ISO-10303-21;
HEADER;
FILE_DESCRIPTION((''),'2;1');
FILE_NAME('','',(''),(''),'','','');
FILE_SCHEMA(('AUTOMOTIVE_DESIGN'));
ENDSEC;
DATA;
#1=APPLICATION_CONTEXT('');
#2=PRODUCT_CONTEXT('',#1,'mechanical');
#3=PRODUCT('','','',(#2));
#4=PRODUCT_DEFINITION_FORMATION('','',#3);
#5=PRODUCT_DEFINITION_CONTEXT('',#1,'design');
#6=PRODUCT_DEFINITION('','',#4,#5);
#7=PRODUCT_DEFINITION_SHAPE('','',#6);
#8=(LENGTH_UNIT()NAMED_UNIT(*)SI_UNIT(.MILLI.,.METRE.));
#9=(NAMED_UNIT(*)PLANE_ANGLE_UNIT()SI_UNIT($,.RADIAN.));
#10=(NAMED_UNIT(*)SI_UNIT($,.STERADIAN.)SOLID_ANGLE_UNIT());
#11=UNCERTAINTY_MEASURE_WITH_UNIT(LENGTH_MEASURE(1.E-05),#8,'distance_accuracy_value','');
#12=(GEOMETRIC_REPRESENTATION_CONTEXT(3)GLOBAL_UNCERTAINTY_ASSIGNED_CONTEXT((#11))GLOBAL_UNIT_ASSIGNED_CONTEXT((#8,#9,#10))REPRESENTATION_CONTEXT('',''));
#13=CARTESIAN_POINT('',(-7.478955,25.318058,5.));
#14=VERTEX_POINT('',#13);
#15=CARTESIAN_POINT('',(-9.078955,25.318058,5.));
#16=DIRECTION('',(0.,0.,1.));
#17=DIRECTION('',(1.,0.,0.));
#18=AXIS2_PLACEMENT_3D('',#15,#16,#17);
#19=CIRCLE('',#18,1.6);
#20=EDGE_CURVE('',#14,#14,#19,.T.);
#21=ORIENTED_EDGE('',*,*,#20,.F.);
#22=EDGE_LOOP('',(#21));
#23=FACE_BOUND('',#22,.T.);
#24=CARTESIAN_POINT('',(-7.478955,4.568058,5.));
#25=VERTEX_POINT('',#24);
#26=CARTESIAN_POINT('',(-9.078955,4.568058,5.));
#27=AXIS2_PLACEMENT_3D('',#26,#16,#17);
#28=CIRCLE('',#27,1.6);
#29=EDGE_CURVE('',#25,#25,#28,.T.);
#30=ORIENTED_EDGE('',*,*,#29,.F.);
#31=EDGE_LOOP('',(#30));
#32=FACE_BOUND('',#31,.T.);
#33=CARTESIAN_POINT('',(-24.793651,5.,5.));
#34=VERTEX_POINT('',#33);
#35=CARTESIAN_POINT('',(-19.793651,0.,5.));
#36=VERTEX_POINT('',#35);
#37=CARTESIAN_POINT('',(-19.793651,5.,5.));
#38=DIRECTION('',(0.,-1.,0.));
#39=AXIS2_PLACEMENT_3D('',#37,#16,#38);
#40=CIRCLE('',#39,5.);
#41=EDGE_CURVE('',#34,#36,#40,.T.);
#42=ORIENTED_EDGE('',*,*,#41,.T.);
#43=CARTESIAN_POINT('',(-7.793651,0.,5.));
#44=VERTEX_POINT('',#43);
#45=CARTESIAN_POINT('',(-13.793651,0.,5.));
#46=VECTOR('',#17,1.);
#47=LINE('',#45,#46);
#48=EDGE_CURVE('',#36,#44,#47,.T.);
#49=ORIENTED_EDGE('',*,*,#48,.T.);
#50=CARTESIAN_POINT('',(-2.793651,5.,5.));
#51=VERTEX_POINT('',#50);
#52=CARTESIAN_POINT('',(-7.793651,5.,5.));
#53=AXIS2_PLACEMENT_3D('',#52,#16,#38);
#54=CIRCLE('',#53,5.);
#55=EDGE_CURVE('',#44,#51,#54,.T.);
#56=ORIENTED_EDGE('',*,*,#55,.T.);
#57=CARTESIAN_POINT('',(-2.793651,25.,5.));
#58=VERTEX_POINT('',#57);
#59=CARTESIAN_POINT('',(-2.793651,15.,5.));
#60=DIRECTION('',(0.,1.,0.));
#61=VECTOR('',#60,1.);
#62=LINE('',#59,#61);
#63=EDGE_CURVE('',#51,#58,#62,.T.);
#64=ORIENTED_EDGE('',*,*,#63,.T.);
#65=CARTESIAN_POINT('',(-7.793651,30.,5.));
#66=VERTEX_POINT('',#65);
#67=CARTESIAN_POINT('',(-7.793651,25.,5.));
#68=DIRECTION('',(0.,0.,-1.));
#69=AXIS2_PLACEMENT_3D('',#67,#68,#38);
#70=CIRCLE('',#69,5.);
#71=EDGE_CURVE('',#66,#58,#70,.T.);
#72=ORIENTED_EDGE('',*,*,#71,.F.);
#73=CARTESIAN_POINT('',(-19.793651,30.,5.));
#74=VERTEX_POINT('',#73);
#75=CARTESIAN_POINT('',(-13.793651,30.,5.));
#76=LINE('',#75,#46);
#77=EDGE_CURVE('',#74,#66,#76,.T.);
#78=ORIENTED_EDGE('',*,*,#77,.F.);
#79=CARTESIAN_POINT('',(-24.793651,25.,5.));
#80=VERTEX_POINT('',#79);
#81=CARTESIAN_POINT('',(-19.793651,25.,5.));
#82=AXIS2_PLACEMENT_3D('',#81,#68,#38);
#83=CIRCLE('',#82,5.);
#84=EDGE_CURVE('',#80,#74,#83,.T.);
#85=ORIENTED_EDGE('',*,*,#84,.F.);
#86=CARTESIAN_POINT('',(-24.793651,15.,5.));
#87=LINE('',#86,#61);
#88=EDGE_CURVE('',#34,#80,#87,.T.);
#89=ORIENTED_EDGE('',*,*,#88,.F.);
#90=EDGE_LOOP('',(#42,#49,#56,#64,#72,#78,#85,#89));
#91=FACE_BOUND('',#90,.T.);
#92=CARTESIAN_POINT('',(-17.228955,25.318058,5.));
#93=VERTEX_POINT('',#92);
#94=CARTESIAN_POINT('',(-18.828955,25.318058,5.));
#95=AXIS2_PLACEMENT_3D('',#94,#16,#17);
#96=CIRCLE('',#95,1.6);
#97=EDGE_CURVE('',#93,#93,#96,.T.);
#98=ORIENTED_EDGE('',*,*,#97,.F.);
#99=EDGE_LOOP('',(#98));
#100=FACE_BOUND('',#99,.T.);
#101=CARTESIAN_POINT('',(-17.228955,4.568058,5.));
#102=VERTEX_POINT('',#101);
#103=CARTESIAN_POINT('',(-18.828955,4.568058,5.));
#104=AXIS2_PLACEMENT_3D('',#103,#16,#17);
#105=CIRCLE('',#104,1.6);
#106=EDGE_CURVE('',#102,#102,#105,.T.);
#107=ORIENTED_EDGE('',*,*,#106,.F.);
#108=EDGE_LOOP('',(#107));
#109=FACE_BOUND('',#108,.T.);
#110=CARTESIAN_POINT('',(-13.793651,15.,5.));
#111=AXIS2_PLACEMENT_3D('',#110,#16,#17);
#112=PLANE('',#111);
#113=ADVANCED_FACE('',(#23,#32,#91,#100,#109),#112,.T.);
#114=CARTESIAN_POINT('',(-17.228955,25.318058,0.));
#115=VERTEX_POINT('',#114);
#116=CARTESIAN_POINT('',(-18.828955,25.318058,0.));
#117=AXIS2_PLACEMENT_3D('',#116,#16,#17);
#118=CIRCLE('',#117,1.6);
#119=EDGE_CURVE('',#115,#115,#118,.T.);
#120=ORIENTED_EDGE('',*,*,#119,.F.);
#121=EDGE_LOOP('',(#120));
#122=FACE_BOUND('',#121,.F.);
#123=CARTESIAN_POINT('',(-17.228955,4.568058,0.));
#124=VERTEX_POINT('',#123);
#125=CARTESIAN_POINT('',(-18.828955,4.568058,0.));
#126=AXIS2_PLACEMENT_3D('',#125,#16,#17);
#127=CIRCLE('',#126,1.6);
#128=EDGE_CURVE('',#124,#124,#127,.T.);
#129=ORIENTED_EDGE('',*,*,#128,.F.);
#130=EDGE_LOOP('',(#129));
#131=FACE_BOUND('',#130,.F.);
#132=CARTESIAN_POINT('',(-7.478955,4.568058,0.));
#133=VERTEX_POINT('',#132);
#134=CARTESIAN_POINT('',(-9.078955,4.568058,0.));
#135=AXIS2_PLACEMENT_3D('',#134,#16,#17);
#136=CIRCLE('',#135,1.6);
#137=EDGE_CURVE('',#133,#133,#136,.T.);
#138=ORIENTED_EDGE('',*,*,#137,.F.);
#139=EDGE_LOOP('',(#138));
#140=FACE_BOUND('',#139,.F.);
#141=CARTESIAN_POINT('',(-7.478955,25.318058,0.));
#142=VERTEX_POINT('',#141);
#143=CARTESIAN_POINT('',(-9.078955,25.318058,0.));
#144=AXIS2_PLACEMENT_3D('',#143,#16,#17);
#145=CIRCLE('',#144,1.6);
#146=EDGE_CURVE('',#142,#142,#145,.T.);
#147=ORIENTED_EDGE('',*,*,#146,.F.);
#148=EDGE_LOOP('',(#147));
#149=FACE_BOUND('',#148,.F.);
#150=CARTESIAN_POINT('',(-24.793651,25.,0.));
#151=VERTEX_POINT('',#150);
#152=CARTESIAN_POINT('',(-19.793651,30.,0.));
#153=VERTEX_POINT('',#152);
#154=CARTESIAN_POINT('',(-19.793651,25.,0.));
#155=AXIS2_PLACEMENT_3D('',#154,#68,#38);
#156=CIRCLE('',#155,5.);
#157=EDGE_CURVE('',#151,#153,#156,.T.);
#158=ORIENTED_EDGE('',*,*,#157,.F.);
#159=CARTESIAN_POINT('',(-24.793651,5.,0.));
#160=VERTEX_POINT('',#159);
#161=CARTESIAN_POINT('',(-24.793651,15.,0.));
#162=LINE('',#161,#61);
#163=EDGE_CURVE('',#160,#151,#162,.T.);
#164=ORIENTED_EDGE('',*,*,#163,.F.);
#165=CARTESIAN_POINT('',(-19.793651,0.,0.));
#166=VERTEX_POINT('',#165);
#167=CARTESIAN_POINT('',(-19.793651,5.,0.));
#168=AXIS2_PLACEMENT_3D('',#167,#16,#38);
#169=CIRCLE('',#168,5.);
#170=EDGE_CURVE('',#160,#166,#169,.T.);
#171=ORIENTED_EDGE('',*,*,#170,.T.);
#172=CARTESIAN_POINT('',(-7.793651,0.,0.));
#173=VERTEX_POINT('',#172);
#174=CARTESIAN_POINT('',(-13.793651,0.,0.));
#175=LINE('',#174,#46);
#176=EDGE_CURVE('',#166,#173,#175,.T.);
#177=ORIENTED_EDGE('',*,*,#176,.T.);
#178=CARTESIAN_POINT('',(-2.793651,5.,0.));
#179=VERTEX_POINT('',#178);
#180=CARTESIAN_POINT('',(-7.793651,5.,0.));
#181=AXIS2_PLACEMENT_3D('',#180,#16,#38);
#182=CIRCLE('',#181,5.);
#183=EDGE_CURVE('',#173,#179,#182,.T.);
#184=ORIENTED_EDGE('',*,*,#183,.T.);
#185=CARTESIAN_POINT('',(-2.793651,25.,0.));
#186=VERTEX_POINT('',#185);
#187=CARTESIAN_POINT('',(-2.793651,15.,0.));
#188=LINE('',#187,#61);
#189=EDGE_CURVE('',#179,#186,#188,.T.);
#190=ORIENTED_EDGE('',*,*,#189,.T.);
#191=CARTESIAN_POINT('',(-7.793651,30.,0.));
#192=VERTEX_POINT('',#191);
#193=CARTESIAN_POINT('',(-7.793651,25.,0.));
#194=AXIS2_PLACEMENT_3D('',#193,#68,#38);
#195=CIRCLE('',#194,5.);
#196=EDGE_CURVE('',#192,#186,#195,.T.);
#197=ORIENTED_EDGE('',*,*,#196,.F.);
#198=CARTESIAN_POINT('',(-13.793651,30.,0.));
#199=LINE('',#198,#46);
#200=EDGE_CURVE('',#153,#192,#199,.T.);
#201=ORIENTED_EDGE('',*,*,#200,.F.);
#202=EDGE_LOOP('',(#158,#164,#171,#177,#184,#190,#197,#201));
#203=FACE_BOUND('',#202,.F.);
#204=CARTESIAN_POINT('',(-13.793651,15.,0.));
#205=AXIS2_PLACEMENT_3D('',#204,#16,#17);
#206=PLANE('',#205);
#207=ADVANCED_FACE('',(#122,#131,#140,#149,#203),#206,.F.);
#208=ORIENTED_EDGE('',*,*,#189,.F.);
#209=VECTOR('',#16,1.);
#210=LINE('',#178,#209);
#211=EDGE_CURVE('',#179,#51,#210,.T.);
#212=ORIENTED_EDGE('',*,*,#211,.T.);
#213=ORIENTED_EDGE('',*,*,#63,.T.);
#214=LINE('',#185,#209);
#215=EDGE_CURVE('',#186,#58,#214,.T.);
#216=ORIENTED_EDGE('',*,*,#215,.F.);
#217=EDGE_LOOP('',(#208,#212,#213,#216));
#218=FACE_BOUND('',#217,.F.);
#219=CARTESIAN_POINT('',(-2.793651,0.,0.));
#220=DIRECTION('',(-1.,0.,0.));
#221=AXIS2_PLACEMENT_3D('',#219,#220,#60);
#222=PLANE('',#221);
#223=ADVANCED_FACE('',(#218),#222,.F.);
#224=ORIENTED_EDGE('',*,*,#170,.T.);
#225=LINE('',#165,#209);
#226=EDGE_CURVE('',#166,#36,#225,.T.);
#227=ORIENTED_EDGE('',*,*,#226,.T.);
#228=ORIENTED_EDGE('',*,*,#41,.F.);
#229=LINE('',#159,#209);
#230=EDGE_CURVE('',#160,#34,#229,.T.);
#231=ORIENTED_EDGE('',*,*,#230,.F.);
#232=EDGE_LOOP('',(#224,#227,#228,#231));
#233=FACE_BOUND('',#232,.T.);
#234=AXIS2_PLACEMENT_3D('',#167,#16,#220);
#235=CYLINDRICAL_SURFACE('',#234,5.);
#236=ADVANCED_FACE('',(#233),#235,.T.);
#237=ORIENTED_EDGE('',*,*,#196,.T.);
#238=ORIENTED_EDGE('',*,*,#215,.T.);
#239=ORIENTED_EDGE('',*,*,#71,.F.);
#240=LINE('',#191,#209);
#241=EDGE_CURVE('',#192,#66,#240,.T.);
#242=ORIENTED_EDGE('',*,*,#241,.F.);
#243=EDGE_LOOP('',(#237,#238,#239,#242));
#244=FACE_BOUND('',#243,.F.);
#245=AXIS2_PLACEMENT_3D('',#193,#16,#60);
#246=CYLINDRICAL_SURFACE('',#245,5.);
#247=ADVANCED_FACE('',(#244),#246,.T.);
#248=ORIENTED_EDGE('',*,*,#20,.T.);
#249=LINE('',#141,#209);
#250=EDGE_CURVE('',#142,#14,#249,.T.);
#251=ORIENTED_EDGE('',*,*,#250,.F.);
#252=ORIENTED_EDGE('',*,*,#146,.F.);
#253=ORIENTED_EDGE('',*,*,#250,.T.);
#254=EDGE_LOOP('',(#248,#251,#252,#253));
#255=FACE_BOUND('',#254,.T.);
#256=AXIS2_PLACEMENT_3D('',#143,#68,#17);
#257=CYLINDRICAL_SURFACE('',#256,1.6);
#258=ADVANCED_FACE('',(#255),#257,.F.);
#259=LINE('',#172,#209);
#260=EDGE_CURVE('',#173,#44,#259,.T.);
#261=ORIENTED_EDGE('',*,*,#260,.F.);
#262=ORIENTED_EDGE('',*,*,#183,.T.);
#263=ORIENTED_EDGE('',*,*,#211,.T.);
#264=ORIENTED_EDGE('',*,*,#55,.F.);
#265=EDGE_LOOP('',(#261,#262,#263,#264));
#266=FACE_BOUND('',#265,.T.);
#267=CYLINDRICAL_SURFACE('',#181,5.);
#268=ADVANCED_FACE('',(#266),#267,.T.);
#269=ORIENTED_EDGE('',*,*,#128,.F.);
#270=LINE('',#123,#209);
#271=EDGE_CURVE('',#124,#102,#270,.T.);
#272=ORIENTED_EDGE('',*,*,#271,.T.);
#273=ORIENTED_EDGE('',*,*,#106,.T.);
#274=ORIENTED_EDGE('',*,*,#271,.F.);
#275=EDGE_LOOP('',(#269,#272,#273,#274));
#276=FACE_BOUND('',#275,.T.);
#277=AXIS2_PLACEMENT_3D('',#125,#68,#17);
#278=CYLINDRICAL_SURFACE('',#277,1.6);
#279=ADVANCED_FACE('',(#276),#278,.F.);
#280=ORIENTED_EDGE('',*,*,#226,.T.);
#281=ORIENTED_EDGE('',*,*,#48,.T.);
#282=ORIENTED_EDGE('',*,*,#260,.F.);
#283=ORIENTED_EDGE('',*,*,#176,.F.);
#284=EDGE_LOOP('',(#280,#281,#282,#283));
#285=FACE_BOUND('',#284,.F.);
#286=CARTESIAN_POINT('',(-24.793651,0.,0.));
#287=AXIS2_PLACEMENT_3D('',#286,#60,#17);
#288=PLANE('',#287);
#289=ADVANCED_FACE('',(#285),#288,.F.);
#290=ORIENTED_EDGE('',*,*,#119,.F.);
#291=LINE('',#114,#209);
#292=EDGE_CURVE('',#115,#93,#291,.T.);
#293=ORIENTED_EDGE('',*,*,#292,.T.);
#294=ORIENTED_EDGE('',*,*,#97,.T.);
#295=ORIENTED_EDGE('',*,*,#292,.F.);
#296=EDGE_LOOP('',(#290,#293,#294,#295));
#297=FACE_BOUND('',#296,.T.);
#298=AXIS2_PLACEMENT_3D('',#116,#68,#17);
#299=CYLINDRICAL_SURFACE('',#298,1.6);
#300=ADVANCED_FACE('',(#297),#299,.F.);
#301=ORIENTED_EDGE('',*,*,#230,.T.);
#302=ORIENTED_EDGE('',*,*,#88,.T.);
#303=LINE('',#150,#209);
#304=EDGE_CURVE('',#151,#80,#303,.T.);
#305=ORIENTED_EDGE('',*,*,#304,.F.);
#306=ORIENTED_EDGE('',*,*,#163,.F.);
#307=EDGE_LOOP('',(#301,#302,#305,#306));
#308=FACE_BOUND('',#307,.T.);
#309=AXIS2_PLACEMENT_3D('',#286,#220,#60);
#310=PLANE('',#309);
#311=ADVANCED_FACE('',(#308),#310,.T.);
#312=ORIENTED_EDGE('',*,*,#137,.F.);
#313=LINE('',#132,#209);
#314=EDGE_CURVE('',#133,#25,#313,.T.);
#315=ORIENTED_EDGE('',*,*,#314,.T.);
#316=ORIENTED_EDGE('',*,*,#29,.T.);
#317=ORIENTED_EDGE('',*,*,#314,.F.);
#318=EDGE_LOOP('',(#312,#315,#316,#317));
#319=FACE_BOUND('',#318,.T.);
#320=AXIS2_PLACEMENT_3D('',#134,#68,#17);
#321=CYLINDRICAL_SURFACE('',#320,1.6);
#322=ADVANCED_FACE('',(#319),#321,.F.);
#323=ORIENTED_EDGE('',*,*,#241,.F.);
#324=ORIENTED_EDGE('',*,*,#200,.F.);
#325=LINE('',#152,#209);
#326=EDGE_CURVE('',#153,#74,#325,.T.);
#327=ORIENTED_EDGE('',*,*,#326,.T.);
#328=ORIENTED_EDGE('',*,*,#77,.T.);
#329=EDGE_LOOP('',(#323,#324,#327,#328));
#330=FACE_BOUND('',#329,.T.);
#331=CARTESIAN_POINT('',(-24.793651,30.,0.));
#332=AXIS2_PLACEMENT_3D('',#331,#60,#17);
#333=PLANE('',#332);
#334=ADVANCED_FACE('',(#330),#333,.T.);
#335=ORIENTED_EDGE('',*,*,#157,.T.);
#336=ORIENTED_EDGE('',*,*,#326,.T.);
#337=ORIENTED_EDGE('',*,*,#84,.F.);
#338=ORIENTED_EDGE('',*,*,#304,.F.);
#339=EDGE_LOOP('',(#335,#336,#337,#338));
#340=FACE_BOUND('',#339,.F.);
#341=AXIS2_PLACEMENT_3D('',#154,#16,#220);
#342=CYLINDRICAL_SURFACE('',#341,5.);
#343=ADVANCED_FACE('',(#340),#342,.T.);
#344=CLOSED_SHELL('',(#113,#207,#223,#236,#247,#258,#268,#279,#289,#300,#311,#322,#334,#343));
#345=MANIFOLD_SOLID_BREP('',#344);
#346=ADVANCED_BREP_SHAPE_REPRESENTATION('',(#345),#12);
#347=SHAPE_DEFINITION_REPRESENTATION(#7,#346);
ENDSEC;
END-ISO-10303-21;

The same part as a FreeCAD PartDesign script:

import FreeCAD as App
import Part
import Sketcher

V = App.Vector
Q = App.Units.Quantity


def edges_at(feature, points):
    """Names of the edges that pass closest to the given points."""
    edges = feature.Shape.Edges
    near = lambda p: min(range(len(edges)), key=lambda i: edges[i].distToShape(Part.Vertex(*p))[0])
    return sorted({f"Edge{near(p) + 1}" for p in points})


def add_polygon(sketch, points):
    """Adds a closed chain of lines whose ends are joined by coincident constraints."""
    first, n = sketch.GeometryCount, len(points)
    for a, b in zip(points, points[1:] + points[:1]):
        sketch.addGeometry(Part.LineSegment(App.Vector(*a, 0), App.Vector(*b, 0)), False)
    for i in range(n):
        sketch.addConstraint(Sketcher.Constraint("Coincident", first + i, 2, first + (i + 1) % n, 1))

doc = App.newDocument("Part")
body = doc.addObject("PartDesign::Body", "Body")

# Sketch on XY plane
sketch1 = doc.addObject("Sketcher::SketchObject", "Sketch")
body.addObject(sketch1)
sketch1.AttachmentSupport = (doc.XY_Plane, [""])
sketch1.MapMode = "FlatFace"
add_polygon(sketch1, [(-24.8, 30), (-24.8, 0), (-2.8, 0), (-2.8, 30)])  # lines 0-3
sketch1.addGeometry(Part.Circle(V(-18.8, 4.6, 0), V(0, 0, 1), 1.6), False)  # 4
sketch1.addGeometry(Part.Circle(V(-9.1, 4.6, 0), V(0, 0, 1), 1.6), False)  # 5
sketch1.addGeometry(Part.Circle(V(-18.8, 25.3, 0), V(0, 0, 1), 1.6), False)  # 6
sketch1.addGeometry(Part.Circle(V(-9.1, 25.3, 0), V(0, 0, 1), 1.6), False)  # 7
sketch1.addConstraint([
    Sketcher.Constraint("Vertical", 0),
    Sketcher.Constraint("Horizontal", 1),
    Sketcher.Constraint("Vertical", 2),
    Sketcher.Constraint("Horizontal", 3),
    Sketcher.Constraint("Equal", 4, 5),
    Sketcher.Constraint("Equal", 5, 6),
    Sketcher.Constraint("Equal", 6, 7),
    Sketcher.Constraint("PointOnObject", 0, 2, -1),
    Sketcher.Constraint("Horizontal", 4, 3, 5, 3),
    Sketcher.Constraint("Horizontal", 6, 3, 7, 3),
    Sketcher.Constraint("Vertical", 4, 3, 6, 3),
    Sketcher.Constraint("Vertical", 5, 3, 7, 3),
    Sketcher.Constraint("Diameter", 4, Q("3.2 mm")),
    Sketcher.Constraint("DistanceX", 1, 1, 1, 2, Q("22 mm")),
    Sketcher.Constraint("DistanceY", 0, 2, 0, 1, Q("30 mm")),
    Sketcher.Constraint("DistanceX", 4, 3, 5, 3, Q("9.75 mm")),
    Sketcher.Constraint("DistanceY", 4, 3, 6, 3, Q("20.75 mm")),
    Sketcher.Constraint("DistanceY", -1, 1, 6, 3, Q("25.318058 mm")),
    Sketcher.Constraint("DistanceX", 0, 2, -1, 1, Q("24.793651 mm")),
    Sketcher.Constraint("DistanceX", 4, 3, -1, 1, Q("18.828955 mm")),
])
pad1 = doc.addObject("PartDesign::Pad", "Pad")
body.addObject(pad1)
pad1.Profile = sketch1
pad1.Length = 5
doc.recompute()

fillet = doc.addObject("PartDesign::Fillet", "Fillet")
body.addObject(fillet)
fillet.Base = (pad1, edges_at(pad1, [
    (-24.794, 30, 2.5),
    (-24.794, 0, 2.5),
    (-2.794, 0, 2.5),
    (-2.794, 30, 2.5),
]))
fillet.Radius = 5

doc.recompute()
